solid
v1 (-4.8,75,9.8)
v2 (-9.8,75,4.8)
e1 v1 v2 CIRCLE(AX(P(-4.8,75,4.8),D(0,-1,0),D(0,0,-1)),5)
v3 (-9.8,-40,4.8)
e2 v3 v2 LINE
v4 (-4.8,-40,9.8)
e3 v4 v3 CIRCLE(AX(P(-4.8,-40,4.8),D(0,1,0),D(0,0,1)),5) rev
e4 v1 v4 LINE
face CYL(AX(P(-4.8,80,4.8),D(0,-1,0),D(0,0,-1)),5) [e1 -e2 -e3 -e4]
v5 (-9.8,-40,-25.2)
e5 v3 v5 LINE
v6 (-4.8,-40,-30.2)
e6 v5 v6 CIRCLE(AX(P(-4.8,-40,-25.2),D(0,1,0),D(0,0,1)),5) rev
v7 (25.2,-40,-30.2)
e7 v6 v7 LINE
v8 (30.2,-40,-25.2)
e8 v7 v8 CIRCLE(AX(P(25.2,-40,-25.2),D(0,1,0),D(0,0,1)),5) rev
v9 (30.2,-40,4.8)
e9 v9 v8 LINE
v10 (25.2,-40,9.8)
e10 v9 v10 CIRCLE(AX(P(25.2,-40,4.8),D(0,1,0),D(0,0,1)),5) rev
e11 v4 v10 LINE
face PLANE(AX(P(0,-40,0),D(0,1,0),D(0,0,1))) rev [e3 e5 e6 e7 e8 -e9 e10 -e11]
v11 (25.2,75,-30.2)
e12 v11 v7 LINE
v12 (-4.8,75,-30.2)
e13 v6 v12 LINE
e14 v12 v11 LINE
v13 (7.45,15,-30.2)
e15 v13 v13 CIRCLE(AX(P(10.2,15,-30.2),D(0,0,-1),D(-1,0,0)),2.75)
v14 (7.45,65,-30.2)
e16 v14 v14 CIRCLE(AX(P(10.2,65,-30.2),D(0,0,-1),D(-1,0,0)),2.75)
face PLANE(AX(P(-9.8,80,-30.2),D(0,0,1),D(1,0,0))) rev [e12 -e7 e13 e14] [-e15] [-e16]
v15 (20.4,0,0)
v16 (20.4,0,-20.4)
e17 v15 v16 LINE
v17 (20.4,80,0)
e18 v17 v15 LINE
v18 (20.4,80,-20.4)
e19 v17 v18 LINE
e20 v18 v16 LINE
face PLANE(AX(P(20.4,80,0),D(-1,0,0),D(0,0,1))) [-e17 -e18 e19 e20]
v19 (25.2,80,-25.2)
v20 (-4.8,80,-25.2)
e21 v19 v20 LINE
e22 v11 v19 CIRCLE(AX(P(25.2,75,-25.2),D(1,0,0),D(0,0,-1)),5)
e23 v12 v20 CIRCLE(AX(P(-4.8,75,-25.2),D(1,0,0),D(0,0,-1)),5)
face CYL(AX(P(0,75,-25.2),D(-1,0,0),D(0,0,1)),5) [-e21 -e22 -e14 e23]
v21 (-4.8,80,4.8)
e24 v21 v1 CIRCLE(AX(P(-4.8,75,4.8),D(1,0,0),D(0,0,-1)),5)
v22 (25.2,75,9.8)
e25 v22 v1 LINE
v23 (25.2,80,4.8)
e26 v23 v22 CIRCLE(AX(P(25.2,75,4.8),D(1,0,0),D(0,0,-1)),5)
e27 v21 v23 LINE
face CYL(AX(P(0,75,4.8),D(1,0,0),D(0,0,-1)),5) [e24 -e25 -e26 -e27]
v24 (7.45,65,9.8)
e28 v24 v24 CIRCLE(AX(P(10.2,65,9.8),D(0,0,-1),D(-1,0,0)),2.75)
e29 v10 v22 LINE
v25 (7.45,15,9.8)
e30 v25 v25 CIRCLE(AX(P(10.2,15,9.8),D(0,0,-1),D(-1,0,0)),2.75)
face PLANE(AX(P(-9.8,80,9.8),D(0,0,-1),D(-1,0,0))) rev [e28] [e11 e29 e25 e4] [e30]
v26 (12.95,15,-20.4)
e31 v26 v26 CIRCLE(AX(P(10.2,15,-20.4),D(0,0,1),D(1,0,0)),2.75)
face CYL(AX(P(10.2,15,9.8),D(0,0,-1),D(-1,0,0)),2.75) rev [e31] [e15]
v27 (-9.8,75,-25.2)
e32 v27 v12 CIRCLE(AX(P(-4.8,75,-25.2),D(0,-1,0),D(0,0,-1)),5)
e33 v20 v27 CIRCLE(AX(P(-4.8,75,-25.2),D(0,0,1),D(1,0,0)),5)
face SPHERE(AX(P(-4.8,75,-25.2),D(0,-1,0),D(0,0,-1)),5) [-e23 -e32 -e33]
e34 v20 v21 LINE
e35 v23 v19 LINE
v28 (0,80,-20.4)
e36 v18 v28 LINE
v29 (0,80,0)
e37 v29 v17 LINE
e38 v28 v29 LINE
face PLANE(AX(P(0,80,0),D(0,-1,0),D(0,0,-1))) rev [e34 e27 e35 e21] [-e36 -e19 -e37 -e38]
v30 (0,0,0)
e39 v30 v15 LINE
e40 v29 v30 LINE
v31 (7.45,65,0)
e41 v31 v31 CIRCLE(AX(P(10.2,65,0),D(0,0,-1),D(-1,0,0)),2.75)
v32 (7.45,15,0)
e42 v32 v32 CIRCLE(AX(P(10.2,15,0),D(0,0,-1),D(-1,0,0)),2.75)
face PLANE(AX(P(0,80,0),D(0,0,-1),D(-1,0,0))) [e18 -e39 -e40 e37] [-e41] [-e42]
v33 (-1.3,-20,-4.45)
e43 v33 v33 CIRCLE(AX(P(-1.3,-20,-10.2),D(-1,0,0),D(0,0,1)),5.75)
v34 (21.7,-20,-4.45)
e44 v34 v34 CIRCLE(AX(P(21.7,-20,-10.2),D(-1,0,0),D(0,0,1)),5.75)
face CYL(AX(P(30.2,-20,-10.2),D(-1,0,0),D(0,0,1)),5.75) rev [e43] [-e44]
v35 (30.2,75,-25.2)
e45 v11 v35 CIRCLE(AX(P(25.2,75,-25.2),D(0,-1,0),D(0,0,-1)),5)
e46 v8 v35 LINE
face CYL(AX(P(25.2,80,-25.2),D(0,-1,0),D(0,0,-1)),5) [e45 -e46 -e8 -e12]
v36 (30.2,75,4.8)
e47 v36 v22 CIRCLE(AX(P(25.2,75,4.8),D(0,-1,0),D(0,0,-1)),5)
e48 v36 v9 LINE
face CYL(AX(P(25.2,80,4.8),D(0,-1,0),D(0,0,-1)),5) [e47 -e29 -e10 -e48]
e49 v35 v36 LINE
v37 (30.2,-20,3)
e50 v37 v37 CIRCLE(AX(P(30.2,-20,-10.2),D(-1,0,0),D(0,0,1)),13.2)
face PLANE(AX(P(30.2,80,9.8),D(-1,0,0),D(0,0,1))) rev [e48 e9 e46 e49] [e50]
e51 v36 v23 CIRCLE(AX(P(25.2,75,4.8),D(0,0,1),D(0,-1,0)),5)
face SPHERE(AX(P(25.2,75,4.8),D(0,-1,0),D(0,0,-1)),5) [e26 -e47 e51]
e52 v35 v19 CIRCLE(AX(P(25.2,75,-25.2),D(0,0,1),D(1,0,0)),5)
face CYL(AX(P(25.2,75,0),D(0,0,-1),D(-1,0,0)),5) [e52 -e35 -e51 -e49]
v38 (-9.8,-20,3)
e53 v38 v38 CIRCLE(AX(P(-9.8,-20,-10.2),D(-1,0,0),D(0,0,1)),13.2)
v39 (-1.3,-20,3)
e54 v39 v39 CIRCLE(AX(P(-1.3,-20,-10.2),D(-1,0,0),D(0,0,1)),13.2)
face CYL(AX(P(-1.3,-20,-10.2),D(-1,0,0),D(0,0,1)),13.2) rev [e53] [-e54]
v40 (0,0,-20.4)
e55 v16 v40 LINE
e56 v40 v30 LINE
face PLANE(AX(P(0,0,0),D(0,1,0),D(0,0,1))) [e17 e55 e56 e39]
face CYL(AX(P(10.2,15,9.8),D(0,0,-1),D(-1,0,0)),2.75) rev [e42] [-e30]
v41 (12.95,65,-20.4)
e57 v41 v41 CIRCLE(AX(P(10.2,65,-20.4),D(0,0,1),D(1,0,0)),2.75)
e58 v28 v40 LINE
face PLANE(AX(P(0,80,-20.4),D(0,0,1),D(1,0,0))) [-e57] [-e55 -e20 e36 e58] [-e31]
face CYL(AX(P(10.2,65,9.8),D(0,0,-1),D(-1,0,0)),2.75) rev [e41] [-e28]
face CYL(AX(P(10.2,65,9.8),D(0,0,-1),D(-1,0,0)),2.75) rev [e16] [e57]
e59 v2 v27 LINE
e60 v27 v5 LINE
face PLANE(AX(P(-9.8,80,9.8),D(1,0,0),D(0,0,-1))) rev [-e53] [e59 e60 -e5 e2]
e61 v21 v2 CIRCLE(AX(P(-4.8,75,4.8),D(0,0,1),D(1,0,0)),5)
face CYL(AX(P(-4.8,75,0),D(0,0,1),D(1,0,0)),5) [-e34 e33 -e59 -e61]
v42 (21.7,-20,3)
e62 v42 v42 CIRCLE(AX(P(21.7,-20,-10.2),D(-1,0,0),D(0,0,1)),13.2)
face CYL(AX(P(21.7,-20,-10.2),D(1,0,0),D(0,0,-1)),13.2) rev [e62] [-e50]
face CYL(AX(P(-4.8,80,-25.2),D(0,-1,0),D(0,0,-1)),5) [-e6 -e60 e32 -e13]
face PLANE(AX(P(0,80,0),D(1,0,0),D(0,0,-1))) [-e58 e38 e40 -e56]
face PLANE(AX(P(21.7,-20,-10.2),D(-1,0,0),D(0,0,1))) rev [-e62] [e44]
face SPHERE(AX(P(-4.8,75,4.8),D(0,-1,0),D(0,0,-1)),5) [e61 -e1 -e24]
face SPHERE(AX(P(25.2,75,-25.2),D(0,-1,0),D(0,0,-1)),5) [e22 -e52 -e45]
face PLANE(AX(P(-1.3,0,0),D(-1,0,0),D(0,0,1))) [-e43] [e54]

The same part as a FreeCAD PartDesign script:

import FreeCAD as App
import Part
import Sketcher
from FreeCAD import Vector
Q = App.Units.Quantity


def edges_at(feature, points):
    """Names of the edges that pass closest to the given points."""
    edges = feature.Shape.Edges
    near = lambda p: min(range(len(edges)), key=lambda i: edges[i].distToShape(Part.Vertex(*p))[0])
    return sorted({f"Edge{near(p) + 1}" for p in points})


def add_polygon(sketch, points):
    """Adds a closed chain of lines whose ends are joined by coincident constraints."""
    first, n = sketch.GeometryCount, len(points)
    for a, b in zip(points, points[1:] + points[:1]):
        sketch.addGeometry(Part.LineSegment(App.Vector(*a, 0), App.Vector(*b, 0)), False)
    for i in range(n):
        sketch.addConstraint(Sketcher.Constraint("Coincident", first + i, 2, first + (i + 1) % n, 1))

doc = App.newDocument("Part")
body = doc.addObject("PartDesign::Body", "Body")

# Sketch on XZ plane
sketch1 = doc.addObject("Sketcher::SketchObject", "Sketch")
body.addObject(sketch1)
sketch1.AttachmentSupport = (doc.XZ_Plane, [""])
sketch1.MapMode = "FlatFace"
add_polygon(sketch1, [(-9.8, -30.2), (-9.8, 9.8), (30.2, 9.8), (30.2, -30.2)])  # lines 0-3
add_polygon(sketch1, [(20.4, 0), (0, 0), (0, -20.4), (20.4, -20.4)])  # lines 4-7
sketch1.addConstraint([
    Sketcher.Constraint("Vertical", 0),
    Sketcher.Constraint("Horizontal", 1),
    Sketcher.Constraint("Vertical", 2),
    Sketcher.Constraint("Horizontal", 3),
    Sketcher.Constraint("Horizontal", 4),
    Sketcher.Constraint("Vertical", 5),
    Sketcher.Constraint("Horizontal", 6),
    Sketcher.Constraint("Vertical", 7),
    Sketcher.Constraint("Coincident", 4, 2, -1, 1),
    Sketcher.Constraint("Equal", 3, 0),
    Sketcher.Constraint("Equal", 6, 5),
    Sketcher.Constraint("DistanceX", 1, 1, 1, 2, Q("40 mm")),
    Sketcher.Constraint("DistanceX", 4, 2, 4, 1, Q("20.4 mm")),
    Sketcher.Constraint("DistanceX", 0, 2, -1, 1, Q("9.8 mm")),
    Sketcher.Constraint("DistanceY", -1, 1, 0, 2, Q("9.8 mm")),
])
pad1 = doc.addObject("PartDesign::Pad", "Pad")
body.addObject(pad1)
pad1.Profile = sketch1
pad1.Length = 80
pad1.Reversed = True

# Sketch on XZ plane
sketch2 = doc.addObject("Sketcher::SketchObject", "Sketch001")
body.addObject(sketch2)
sketch2.AttachmentSupport = (doc.XZ_Plane, [""])
sketch2.MapMode = "FlatFace"
add_polygon(sketch2, [(-9.8, -30.2), (-9.8, 9.8), (30.2, 9.8), (30.2, -30.2)])  # lines 0-3
sketch2.addConstraint([
    Sketcher.Constraint("Vertical", 0),
    Sketcher.Constraint("Horizontal", 1),
    Sketcher.Constraint("Vertical", 2),
    Sketcher.Constraint("Horizontal", 3),
    Sketcher.Constraint("Equal", 3, 0),
    Sketcher.Constraint("DistanceX", 1, 1, 1, 2, Q("40 mm")),
    Sketcher.Constraint("DistanceX", 0, 2, -1, 1, Q("9.8 mm")),
    Sketcher.Constraint("DistanceY", -1, 1, 0, 2, Q("9.8 mm")),
])
pad2 = doc.addObject("PartDesign::Pad", "Pad001")
body.addObject(pad2)
pad2.Profile = sketch2
pad2.Length = 40

# Sketch on XY plane
sketch3 = doc.addObject("Sketcher::SketchObject", "Sketch002")
body.addObject(sketch3)
sketch3.AttachmentSupport = (doc.XY_Plane, [""])
sketch3.MapMode = "FlatFace"
sketch3.addGeometry([
    Part.Circle(Vector(10.2, 15, 0), Vector(0, 0, 1), 2.75),
    Part.Circle(Vector(10.2, 65, 0), Vector(0, 0, 1), 2.75),
], False)
sketch3.addConstraint([
    Sketcher.Constraint("Equal", 0, 1),
    Sketcher.Constraint("Vertical", 0, 3, 1, 3),
    Sketcher.Constraint("Diameter", 0, Q("5.5 mm")),
    Sketcher.Constraint("DistanceY", -1, 1, 0, 3, Q("15 mm")),
    Sketcher.Constraint("DistanceY", -1, 1, 1, 3, Q("65 mm")),
    Sketcher.Constraint("DistanceX", -1, 1, 0, 3, Q("10.2 mm")),
])
pocket1 = doc.addObject("PartDesign::Pocket", "Pocket")
body.addObject(pocket1)
pocket1.Profile = sketch3
pocket1.Type = "ThroughAll"
pocket1.Midplane = True

# Sketch on YZ plane
sketch4 = doc.addObject("Sketcher::SketchObject", "Sketch003")
body.addObject(sketch4)
sketch4.AttachmentSupport = (doc.YZ_Plane, [""])
sketch4.MapMode = "FlatFace"
sketch4.AttachmentOffset = App.Placement(Vector(0, 0, -9.8), App.Rotation())
sketch4.addGeometry([
    Part.Circle(Vector(-20, -10.2, 0), Vector(0, 0, 1), 13.2),
    Part.Circle(Vector(-20, -10.2, 0), Vector(0, 0, 1), 5.75),
], False)
sketch4.addConstraint([
    Sketcher.Constraint("Coincident", 1, 3, 0, 3),
    Sketcher.Constraint("Diameter", 0, Q("26.4 mm")),
    Sketcher.Constraint("Diameter", 1, Q("11.5 mm")),
    Sketcher.Constraint("DistanceX", 0, 3, -1, 1, Q("20 mm")),
    Sketcher.Constraint("DistanceY", 0, 3, -1, 1, Q("10.2 mm")),
])
pocket2 = doc.addObject("PartDesign::Pocket", "Pocket001")
body.addObject(pocket2)
pocket2.Profile = sketch4
pocket2.Length = 8.5
pocket2.Reversed = True

# Sketch on YZ plane
sketch5 = doc.addObject("Sketcher::SketchObject", "Sketch004")
body.addObject(sketch5)
sketch5.AttachmentSupport = (doc.YZ_Plane, [""])
sketch5.MapMode = "FlatFace"
sketch5.AttachmentOffset = App.Placement(Vector(0, 0, 21.7), App.Rotation())
sketch5.addGeometry([
    Part.Circle(Vector(-20, -10.2, 0), Vector(0, 0, 1), 13.2),
    Part.Circle(Vector(-20, -10.2, 0), Vector(0, 0, 1), 5.75),
], False)
sketch5.addConstraint([
    Sketcher.Constraint("Coincident", 1, 3, 0, 3),
    Sketcher.Constraint("Diameter", 0, Q("26.4 mm")),
    Sketcher.Constraint("Diameter", 1, Q("11.5 mm")),
    Sketcher.Constraint("DistanceX", 0, 3, -1, 1, Q("20 mm")),
    Sketcher.Constraint("DistanceY", 0, 3, -1, 1, Q("10.2 mm")),
])
pocket3 = doc.addObject("PartDesign::Pocket", "Pocket002")
body.addObject(pocket3)
pocket3.Profile = sketch5
pocket3.Length = 8.5
pocket3.Reversed = True

# Sketch on YZ plane
sketch6 = doc.addObject("Sketcher::SketchObject", "Sketch005")
body.addObject(sketch6)
sketch6.AttachmentSupport = (doc.YZ_Plane, [""])
sketch6.MapMode = "FlatFace"
sketch6.AttachmentOffset = App.Placement(Vector(0, 0, -9.8), App.Rotation())
sketch6.addGeometry(Part.Circle(Vector(-20, -10.2, 0), Vector(0, 0, 1), 5.75), False)
sketch6.addConstraint([
    Sketcher.Constraint("Diameter", 0, Q("11.5 mm")),
    Sketcher.Constraint("DistanceX", 0, 3, -1, 1, Q("20 mm")),
    Sketcher.Constraint("DistanceY", 0, 3, -1, 1, Q("10.2 mm")),
])
pocket4 = doc.addObject("PartDesign::Pocket", "Pocket003")
body.addObject(pocket4)
pocket4.Profile = sketch6
pocket4.Type = "ThroughAll"
pocket4.Reversed = True
doc.recompute()

fillet = doc.addObject("PartDesign::Fillet", "Fillet")
body.addObject(fillet)
fillet.Base = (pocket4, edges_at(pocket4, [
    (-9.8, 20, -30.2),
    (30.2, 20, -30.2),
    (30.2, 20, 9.8),
    (-9.8, 20, 9.8),
]))
fillet.Radius = 5
doc.recompute()

fillet2 = doc.addObject("PartDesign::Fillet", "Fillet001")
body.addObject(fillet2)
fillet2.Base = (fillet, edges_at(fillet, [
    (-9.8, 80, -10.2),
    (10.2, 80, -30.2),
    (10.2, 80, 9.8),
    (30.2, 80, -10.2),
    (28.736, 80, -28.736),
    (28.736, 80, 8.336),
    (-8.336, 80, 8.336),
    (-8.336, 80, -28.736),
]))
fillet2.Radius = 5

doc.recompute()
